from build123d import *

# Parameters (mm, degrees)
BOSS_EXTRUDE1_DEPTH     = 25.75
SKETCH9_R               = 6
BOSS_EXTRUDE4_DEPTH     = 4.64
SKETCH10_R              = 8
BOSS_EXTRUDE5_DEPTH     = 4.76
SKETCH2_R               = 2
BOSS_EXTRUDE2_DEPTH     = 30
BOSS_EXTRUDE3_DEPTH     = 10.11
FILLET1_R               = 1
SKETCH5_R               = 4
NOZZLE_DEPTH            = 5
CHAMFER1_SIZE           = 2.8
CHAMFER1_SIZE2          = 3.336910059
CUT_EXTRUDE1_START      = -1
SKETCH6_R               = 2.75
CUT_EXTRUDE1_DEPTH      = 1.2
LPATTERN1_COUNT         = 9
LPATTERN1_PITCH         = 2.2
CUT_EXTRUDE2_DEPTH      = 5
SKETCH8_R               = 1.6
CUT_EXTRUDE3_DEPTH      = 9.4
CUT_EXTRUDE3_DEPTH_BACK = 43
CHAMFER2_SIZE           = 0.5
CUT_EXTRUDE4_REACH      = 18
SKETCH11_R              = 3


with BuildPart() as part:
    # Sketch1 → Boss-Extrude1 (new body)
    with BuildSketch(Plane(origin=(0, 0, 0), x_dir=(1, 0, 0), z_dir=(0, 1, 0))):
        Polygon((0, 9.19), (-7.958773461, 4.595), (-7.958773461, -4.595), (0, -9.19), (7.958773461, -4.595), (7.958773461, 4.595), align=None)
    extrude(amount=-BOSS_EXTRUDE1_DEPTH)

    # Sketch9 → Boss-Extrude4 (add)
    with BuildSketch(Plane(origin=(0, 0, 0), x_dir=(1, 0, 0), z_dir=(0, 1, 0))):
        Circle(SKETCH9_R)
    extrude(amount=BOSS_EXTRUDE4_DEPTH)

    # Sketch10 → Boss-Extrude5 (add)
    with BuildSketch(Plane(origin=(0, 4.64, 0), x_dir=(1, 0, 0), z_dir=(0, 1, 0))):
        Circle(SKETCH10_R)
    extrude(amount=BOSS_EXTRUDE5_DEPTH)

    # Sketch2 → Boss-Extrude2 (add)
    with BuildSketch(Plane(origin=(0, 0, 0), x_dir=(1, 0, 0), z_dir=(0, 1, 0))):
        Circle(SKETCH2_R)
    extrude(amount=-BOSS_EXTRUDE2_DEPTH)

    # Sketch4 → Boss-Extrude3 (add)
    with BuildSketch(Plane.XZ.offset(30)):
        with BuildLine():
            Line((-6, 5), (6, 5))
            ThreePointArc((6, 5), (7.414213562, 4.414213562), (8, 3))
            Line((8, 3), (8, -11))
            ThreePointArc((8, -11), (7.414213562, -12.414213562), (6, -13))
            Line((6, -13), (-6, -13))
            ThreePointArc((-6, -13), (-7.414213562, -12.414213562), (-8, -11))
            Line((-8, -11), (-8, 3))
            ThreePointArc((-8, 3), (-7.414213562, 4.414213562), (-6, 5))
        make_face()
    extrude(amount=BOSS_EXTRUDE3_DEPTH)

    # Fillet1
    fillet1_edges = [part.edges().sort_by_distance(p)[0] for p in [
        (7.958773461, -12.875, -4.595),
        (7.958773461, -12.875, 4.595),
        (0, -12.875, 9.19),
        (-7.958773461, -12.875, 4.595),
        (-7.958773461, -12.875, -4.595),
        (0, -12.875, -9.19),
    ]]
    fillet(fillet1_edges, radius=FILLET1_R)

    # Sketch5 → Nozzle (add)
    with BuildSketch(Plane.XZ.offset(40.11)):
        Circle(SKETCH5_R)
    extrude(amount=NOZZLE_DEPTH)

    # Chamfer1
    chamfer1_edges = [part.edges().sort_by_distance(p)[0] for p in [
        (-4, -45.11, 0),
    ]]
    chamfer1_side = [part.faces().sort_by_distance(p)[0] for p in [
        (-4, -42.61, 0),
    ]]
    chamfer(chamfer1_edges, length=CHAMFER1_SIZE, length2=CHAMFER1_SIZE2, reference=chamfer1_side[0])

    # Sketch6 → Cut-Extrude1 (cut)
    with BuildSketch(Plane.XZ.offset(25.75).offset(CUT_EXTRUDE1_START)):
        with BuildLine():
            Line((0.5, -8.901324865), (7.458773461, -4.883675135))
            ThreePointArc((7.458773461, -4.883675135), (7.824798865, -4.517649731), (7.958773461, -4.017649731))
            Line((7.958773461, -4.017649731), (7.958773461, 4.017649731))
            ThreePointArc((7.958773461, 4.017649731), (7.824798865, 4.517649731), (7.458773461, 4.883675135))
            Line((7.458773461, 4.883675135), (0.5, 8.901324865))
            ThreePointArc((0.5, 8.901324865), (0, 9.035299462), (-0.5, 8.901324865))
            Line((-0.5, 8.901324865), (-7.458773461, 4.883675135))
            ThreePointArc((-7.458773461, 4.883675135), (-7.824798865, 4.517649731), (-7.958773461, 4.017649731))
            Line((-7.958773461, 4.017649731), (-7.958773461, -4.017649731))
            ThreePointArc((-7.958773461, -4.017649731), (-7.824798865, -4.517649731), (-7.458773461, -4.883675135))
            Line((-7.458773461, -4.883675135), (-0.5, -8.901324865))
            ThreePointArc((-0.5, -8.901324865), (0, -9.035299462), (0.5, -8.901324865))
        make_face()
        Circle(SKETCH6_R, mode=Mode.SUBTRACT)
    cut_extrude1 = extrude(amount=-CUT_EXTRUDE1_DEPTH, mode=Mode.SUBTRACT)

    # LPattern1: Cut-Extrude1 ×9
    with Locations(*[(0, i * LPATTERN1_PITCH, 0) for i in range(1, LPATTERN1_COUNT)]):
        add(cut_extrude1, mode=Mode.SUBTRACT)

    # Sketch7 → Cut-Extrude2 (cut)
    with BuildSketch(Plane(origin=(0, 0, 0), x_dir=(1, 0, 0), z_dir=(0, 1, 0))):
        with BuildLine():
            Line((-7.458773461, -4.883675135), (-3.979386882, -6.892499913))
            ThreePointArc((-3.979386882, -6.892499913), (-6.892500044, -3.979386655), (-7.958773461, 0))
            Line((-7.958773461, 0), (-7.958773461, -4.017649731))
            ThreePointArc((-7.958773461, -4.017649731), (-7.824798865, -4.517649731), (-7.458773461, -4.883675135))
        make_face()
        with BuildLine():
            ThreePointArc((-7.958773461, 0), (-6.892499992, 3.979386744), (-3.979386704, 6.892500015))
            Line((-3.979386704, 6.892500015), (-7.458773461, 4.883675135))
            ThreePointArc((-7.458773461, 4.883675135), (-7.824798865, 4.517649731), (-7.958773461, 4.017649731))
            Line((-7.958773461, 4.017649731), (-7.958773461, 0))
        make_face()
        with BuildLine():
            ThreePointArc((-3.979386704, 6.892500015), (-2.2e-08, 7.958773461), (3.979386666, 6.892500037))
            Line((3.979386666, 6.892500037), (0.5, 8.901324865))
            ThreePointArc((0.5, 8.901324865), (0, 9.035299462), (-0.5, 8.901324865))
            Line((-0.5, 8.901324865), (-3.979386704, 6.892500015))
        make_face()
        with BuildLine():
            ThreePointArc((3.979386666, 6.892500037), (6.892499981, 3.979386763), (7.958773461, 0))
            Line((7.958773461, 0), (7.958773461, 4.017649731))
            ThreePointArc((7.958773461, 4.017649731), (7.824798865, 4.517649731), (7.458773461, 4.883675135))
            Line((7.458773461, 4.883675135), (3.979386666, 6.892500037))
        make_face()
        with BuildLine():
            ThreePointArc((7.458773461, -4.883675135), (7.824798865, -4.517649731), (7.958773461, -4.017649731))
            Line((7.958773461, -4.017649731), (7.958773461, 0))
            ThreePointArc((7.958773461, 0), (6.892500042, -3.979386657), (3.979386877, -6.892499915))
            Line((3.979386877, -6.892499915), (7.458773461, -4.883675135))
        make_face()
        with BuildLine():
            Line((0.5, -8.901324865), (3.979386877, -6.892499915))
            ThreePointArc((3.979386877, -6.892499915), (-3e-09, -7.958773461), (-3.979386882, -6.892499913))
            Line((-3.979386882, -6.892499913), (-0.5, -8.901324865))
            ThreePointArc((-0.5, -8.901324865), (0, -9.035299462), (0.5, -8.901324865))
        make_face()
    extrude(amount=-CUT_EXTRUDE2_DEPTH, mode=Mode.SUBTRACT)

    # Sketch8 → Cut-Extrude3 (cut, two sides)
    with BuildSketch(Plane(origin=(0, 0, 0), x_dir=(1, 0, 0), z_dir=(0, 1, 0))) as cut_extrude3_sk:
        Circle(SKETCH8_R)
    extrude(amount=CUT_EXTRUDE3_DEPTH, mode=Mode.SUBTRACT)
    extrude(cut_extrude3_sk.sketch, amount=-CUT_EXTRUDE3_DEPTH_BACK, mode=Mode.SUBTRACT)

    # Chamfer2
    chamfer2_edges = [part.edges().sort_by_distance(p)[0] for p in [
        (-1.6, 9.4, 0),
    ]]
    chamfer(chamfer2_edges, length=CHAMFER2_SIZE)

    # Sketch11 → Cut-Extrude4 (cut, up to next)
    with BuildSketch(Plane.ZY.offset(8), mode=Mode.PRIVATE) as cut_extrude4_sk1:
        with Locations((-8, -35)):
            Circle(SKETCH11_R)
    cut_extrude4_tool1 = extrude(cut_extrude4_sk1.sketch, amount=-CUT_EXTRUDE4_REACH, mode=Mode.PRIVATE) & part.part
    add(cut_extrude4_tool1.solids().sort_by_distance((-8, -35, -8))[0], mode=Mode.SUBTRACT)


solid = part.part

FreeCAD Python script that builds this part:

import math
import FreeCAD as App
import Part
import Sketcher

V = App.Vector
Q = App.Units.Quantity


def edges_at(feature, points):
    """Names of the edges that pass closest to the given points."""
    edges = feature.Shape.Edges
    near = lambda p: min(range(len(edges)), key=lambda i: edges[i].distToShape(Part.Vertex(*p))[0])
    return sorted({f"Edge{near(p) + 1}" for p in points})


def add_polygon(sketch, points):
    """Adds a closed chain of lines whose ends are joined by coincident constraints."""
    first, n = sketch.GeometryCount, len(points)
    for a, b in zip(points, points[1:] + points[:1]):
        sketch.addGeometry(Part.LineSegment(App.Vector(*a, 0), App.Vector(*b, 0)), False)
    for i in range(n):
        sketch.addConstraint(Sketcher.Constraint("Coincident", first + i, 2, first + (i + 1) % n, 1))

doc = App.newDocument("Part")
body = doc.addObject("PartDesign::Body", "Body")

# Sketch on XZ plane
sketch1 = body.newObject("Sketcher::SketchObject", "Sketch")
sketch1.AttachmentSupport = (doc.getObject("XZ_Plane"), [""])
sketch1.MapMode = "FlatFace"
add_polygon(sketch1, [(0, -9), (-8, -5), (-8, 5), (0, 9), (8, 5), (8, -5)])  # lines 0-5
sketch1.addConstraint(Sketcher.Constraint("Vertical", 1))
sketch1.addConstraint(Sketcher.Constraint("Vertical", 4))
sketch1.addConstraint(Sketcher.Constraint("Symmetric", 0, 2, 3, 2, -1, 1))
sketch1.addConstraint(Sketcher.Constraint("Symmetric", 2, 2, 5, 2, -1, 1))
sketch1.addConstraint(Sketcher.Constraint("PointOnObject", 2, 2, -2))
sketch1.addConstraint(Sketcher.Constraint("Parallel", 2, 5))
sketch1.addConstraint(Sketcher.Constraint("Horizontal", 1, 2, 3, 2))
sketch1.addConstraint(Sketcher.Constraint("Angle", 0, Q("150 deg")))
sketch1.addConstraint(Sketcher.Constraint("DistanceY", 1, 1, 1, 2, 9.19))
sketch1.addConstraint(Sketcher.Constraint("Distance", 0, 9.19))
pad1 = body.newObject("PartDesign::Pad", "Pad")
pad1.Profile = sketch1
pad1.Length = 25.75

# Sketch on XZ plane
sketch2 = body.newObject("Sketcher::SketchObject", "Sketch001")
sketch2.AttachmentSupport = (doc.getObject("XZ_Plane"), [""])
sketch2.MapMode = "FlatFace"
sketch2.addGeometry(Part.Circle(V(0, 0, 0), V(0, 0, 1), 6), False)
sketch2.addConstraint(Sketcher.Constraint("Coincident", 0, 3, -1, 1))
sketch2.addConstraint(Sketcher.Constraint("Diameter", 0, 12.0))
pad2 = body.newObject("PartDesign::Pad", "Pad001")
pad2.Profile = sketch2
pad2.Length = 4.64
pad2.Reversed = True

# Sketch on XZ plane
sketch3 = body.newObject("Sketcher::SketchObject", "Sketch002")
sketch3.AttachmentSupport = (doc.getObject("XZ_Plane"), [""])
sketch3.MapMode = "FlatFace"
sketch3.AttachmentOffset = App.Placement(V(0, 0, -4.64), App.Rotation())
sketch3.addGeometry(Part.Circle(V(0, 0, 0), V(0, 0, 1), 8), False)
sketch3.addConstraint(Sketcher.Constraint("Coincident", 0, 3, -1, 1))
sketch3.addConstraint(Sketcher.Constraint("Diameter", 0, 16.0))
pad3 = body.newObject("PartDesign::Pad", "Pad002")
pad3.Profile = sketch3
pad3.Length = 4.76
pad3.Reversed = True

# Sketch on XZ plane
sketch4 = body.newObject("Sketcher::SketchObject", "Sketch003")
sketch4.AttachmentSupport = (doc.getObject("XZ_Plane"), [""])
sketch4.MapMode = "FlatFace"
sketch4.addGeometry(Part.Circle(V(0, 0, 0), V(0, 0, 1), 2), False)
sketch4.addConstraint(Sketcher.Constraint("Coincident", 0, 3, -1, 1))
sketch4.addConstraint(Sketcher.Constraint("Diameter", 0, 4.0))
pad4 = body.newObject("PartDesign::Pad", "Pad003")
pad4.Profile = sketch4
pad4.Length = 30

# Sketch on XZ plane
sketch5 = body.newObject("Sketcher::SketchObject", "Sketch004")
sketch5.AttachmentSupport = (doc.getObject("XZ_Plane"), [""])
sketch5.MapMode = "FlatFace"
sketch5.AttachmentOffset = App.Placement(V(0, 0, 30), App.Rotation())
sketch5.addGeometry(Part.LineSegment(V(6, 5, 0), V(-6, 5, 0)), False)
sketch5.addGeometry(Part.ArcOfCircle(Part.Circle(V(-6, 3, 0), V(0, 0, 1), 2), math.radians(90), math.radians(180)), False)
sketch5.addGeometry(Part.LineSegment(V(-8, 3, 0), V(-8, -11, 0)), False)
sketch5.addGeometry(Part.ArcOfCircle(Part.Circle(V(-6, -11, 0), V(0, 0, 1), 2), math.radians(-180), math.radians(-90)), False)
sketch5.addGeometry(Part.LineSegment(V(-6, -13, 0), V(6, -13, 0)), False)
sketch5.addGeometry(Part.ArcOfCircle(Part.Circle(V(6, -11, 0), V(0, 0, 1), 2), math.radians(-90), math.radians(0)), False)
sketch5.addGeometry(Part.LineSegment(V(8, -11, 0), V(8, 3, 0)), False)
sketch5.addGeometry(Part.ArcOfCircle(Part.Circle(V(6, 3, 0), V(0, 0, 1), 2), math.radians(0), math.radians(90)), False)
sketch5.addConstraint(Sketcher.Constraint("Tangent", 0, 2, 1, 1))
sketch5.addConstraint(Sketcher.Constraint("Tangent", 1, 2, 2, 1))
sketch5.addConstraint(Sketcher.Constraint("Tangent", 2, 2, 3, 1))
sketch5.addConstraint(Sketcher.Constraint("Tangent", 3, 2, 4, 1))
sketch5.addConstraint(Sketcher.Constraint("Tangent", 4, 2, 5, 1))
sketch5.addConstraint(Sketcher.Constraint("Tangent", 5, 2, 6, 1))
sketch5.addConstraint(Sketcher.Constraint("Tangent", 6, 2, 7, 1))
sketch5.addConstraint(Sketcher.Constraint("Tangent", 7, 2, 0, 1))
sketch5.addConstraint(Sketcher.Constraint("Horizontal", 0))
sketch5.addConstraint(Sketcher.Constraint("Vertical", 2))
sketch5.addConstraint(Sketcher.Constraint("Horizontal", 4))
sketch5.addConstraint(Sketcher.Constraint("Vertical", 6))
sketch5.addConstraint(Sketcher.Constraint("Equal", 1, 3))
sketch5.addConstraint(Sketcher.Constraint("Equal", 3, 5))
sketch5.addConstraint(Sketcher.Constraint("Equal", 5, 7))
sketch5.addConstraint(Sketcher.Constraint("Radius", 1, 2.0))
sketch5.addConstraint(Sketcher.Constraint("DistanceX", 0, 2, 0, 1, 12.0))
sketch5.addConstraint(Sketcher.Constraint("DistanceY", 2, 2, 2, 1, 14.0))
sketch5.addConstraint(Sketcher.Constraint("DistanceX", 1, 3, -1, 1, 6.0))
sketch5.addConstraint(Sketcher.Constraint("DistanceY", -1, 1, 1, 3, 3.0))
pad5 = body.newObject("PartDesign::Pad", "Pad004")
pad5.Profile = sketch5
pad5.Length = 10.11
doc.recompute()

fillet = body.newObject("PartDesign::Fillet", "Fillet")
fillet.Base = (pad5, edges_at(pad5, [
    (7.959, -12.875, -4.595),
    (7.959, -12.875, 4.595),
    (0, -12.875, 9.19),
    (-7.959, -12.875, 4.595),
    (-7.959, -12.875, -4.595),
    (0, -12.875, -9.19),
]))
fillet.Radius = 1

# Sketch on XZ plane
sketch6 = body.newObject("Sketcher::SketchObject", "Sketch005")
sketch6.AttachmentSupport = (doc.getObject("XZ_Plane"), [""])
sketch6.MapMode = "FlatFace"
sketch6.AttachmentOffset = App.Placement(V(0, 0, 40.11), App.Rotation())
sketch6.addGeometry(Part.Circle(V(0, 0, 0), V(0, 0, 1), 4), False)
sketch6.addConstraint(Sketcher.Constraint("Coincident", 0, 3, -1, 1))
sketch6.addConstraint(Sketcher.Constraint("Diameter", 0, 8.0))
pad6 = body.newObject("PartDesign::Pad", "Pad005")
pad6.Profile = sketch6
pad6.Length = 5
doc.recompute()

chamfer = body.newObject("PartDesign::Chamfer", "Chamfer")
chamfer.Base = (pad6, edges_at(pad6, [(-4, -45.11, 0)]))
chamfer.ChamferType = "Two distances"
chamfer.Size = 2.8
chamfer.Size2 = 3.33691

# Sketch on XZ plane
sketch7 = body.newObject("Sketcher::SketchObject", "Sketch006")
sketch7.AttachmentSupport = (doc.getObject("XZ_Plane"), [""])
sketch7.MapMode = "FlatFace"
sketch7.AttachmentOffset = App.Placement(V(0, 0, 24.75), App.Rotation())
sketch7.addGeometry(Part.LineSegment(V(0.5, -8.9, 0), V(7.5, -4.9, 0)), False)
sketch7.addGeometry(Part.ArcOfCircle(Part.Circle(V(7, -4, 0), V(0, 0, 1), 1), math.radians(-60), math.radians(0)), False)
sketch7.addGeometry(Part.LineSegment(V(8, -4, 0), V(8, 4, 0)), False)
sketch7.addGeometry(Part.ArcOfCircle(Part.Circle(V(7, 4, 0), V(0, 0, 1), 1), math.radians(0), math.radians(60)), False)
sketch7.addGeometry(Part.LineSegment(V(7.5, 4.9, 0), V(0.5, 8.9, 0)), False)
sketch7.addGeometry(Part.ArcOfCircle(Part.Circle(V(0, 8, 0), V(0, 0, 1), 1), math.radians(60), math.radians(120)), False)
sketch7.addGeometry(Part.LineSegment(V(-0.5, 8.9, 0), V(-7.5, 4.9, 0)), False)
sketch7.addGeometry(Part.ArcOfCircle(Part.Circle(V(-7, 4, 0), V(0, 0, 1), 1), math.radians(120), math.radians(180)), False)
sketch7.addGeometry(Part.LineSegment(V(-8, 4, 0), V(-8, -4, 0)), False)
sketch7.addGeometry(Part.ArcOfCircle(Part.Circle(V(-7, -4, 0), V(0, 0, 1), 1), math.radians(180), math.radians(240)), False)
sketch7.addGeometry(Part.LineSegment(V(-7.5, -4.9, 0), V(-0.5, -8.9, 0)), False)
sketch7.addGeometry(Part.ArcOfCircle(Part.Circle(V(0, -8, 0), V(0, 0, 1), 1), math.radians(-120), math.radians(-60)), False)
sketch7.addGeometry(Part.Circle(V(0, 0, 0), V(0, 0, 1), 2.8), False)
sketch7.addConstraint(Sketcher.Constraint("Tangent", 0, 2, 1, 1))
sketch7.addConstraint(Sketcher.Constraint("Tangent", 1, 2, 2, 1))
sketch7.addConstraint(Sketcher.Constraint("Tangent", 2, 2, 3, 1))
sketch7.addConstraint(Sketcher.Constraint("Tangent", 3, 2, 4, 1))
sketch7.addConstraint(Sketcher.Constraint("Tangent", 4, 2, 5, 1))
sketch7.addConstraint(Sketcher.Constraint("Tangent", 5, 2, 6, 1))
sketch7.addConstraint(Sketcher.Constraint("Tangent", 6, 2, 7, 1))
sketch7.addConstraint(Sketcher.Constraint("Tangent", 7, 2, 8, 1))
sketch7.addConstraint(Sketcher.Constraint("Tangent", 8, 2, 9, 1))
sketch7.addConstraint(Sketcher.Constraint("Tangent", 9, 2, 10, 1))
sketch7.addConstraint(Sketcher.Constraint("Tangent", 10, 2, 11, 1))
sketch7.addConstraint(Sketcher.Constraint("Tangent", 11, 2, 0, 1))
sketch7.addConstraint(Sketcher.Constraint("Vertical", 2))
sketch7.addConstraint(Sketcher.Constraint("Vertical", 8))
sketch7.addConstraint(Sketcher.Constraint("Coincident", 12, 3, -1, 1))
sketch7.addConstraint(Sketcher.Constraint("Equal", 1, 3))
sketch7.addConstraint(Sketcher.Constraint("Equal", 3, 5))
sketch7.addConstraint(Sketcher.Constraint("Equal", 5, 7))
sketch7.addConstraint(Sketcher.Constraint("Equal", 7, 9))
sketch7.addConstraint(Sketcher.Constraint("Equal", 9, 11))
sketch7.addConstraint(Sketcher.Constraint("Symmetric", 1, 3, 7, 3, -1, 1))
sketch7.addConstraint(Sketcher.Constraint("Symmetric", 5, 3, 11, 3, -1, 1))
sketch7.addConstraint(Sketcher.Constraint("Symmetric", 4, 2, 5, 2, -2))
sketch7.addConstraint(Sketcher.Constraint("Parallel", 4, 10))
sketch7.addConstraint(Sketcher.Constraint("Radius", 1, 1.0))
sketch7.addConstraint(Sketcher.Constraint("Diameter", 12, 5.5))
sketch7.addConstraint(Sketcher.Constraint("Angle", 0, Q("30 deg")))
sketch7.addConstraint(Sketcher.Constraint("DistanceY", 2, 1, 2, 2, 8.035299))
sketch7.addConstraint(Sketcher.Constraint("Distance", 0, 8.035299))
pocket1 = body.newObject("PartDesign::Pocket", "Pocket")
pocket1.Profile = sketch7
pocket1.Length = 1.2
doc.recompute()

linearpattern = body.newObject("PartDesign::LinearPattern", "LinearPattern")
linearpattern.Originals = [pocket1]
linearpattern.Direction = (doc.getObject("Y_Axis"), [""])
linearpattern.Mode = "offset"
linearpattern.Offset = 2.2
linearpattern.Occurrences = 9
body.Tip = linearpattern

# Sketch on XZ plane
sketch8 = body.newObject("Sketcher::SketchObject", "Sketch007")
sketch8.AttachmentSupport = (doc.getObject("XZ_Plane"), [""])
sketch8.MapMode = "FlatFace"
sketch8.addGeometry(Part.LineSegment(V(-7.5, 4.9, 0), V(-4, 6.9, 0)), False)
sketch8.addGeometry(Part.ArcOfCircle(Part.Circle(V(0, 0, 0), V(0, 0, 1), 8), math.radians(120), math.radians(180)), False)
sketch8.addGeometry(Part.LineSegment(V(-8, 0, 0), V(-8, 4, 0)), False)
sketch8.addGeometry(Part.ArcOfCircle(Part.Circle(V(-7, 4, 0), V(0, 0, 1), 1), math.radians(120), math.radians(180)), False)
sketch8.addGeometry(Part.ArcOfCircle(Part.Circle(V(0, 0, 0), V(0, 0, 1), 8), math.radians(-180), math.radians(-120)), False)
sketch8.addGeometry(Part.LineSegment(V(-4, -6.9, 0), V(-7.5, -4.9, 0)), False)
sketch8.addGeometry(Part.ArcOfCircle(Part.Circle(V(-7, -4, 0), V(0, 0, 1), 1), math.radians(180), math.radians(240)), False)
sketch8.addGeometry(Part.LineSegment(V(-8, -4, 0), V(-8, 0, 0)), False)
sketch8.addGeometry(Part.ArcOfCircle(Part.Circle(V(0, 0, 0), V(0, 0, 1), 8), math.radians(-120), math.radians(-60)), False)
sketch8.addGeometry(Part.LineSegment(V(4, -6.9, 0), V(0.5, -8.9, 0)), False)
sketch8.addGeometry(Part.ArcOfCircle(Part.Circle(V(0, -8, 0), V(0, 0, 1), 1), math.radians(-120), math.radians(-60)), False)
sketch8.addGeometry(Part.LineSegment(V(-0.5, -8.9, 0), V(-4, -6.9, 0)), False)
sketch8.addGeometry(Part.ArcOfCircle(Part.Circle(V(0, 0, 0), V(0, 0, 1), 8), math.radians(-60), math.radians(0)), False)
sketch8.addGeometry(Part.LineSegment(V(8, 0, 0), V(8, -4, 0)), False)
sketch8.addGeometry(Part.ArcOfCircle(Part.Circle(V(7, -4, 0), V(0, 0, 1), 1), math.radians(-60), math.radians(0)), False)
sketch8.addGeometry(Part.LineSegment(V(7.5, -4.9, 0), V(4, -6.9, 0)), False)
sketch8.addGeometry(Part.ArcOfCircle(Part.Circle(V(7, 4, 0), V(0, 0, 1), 1), math.radians(0), math.radians(60)), False)
sketch8.addGeometry(Part.LineSegment(V(8, 4, 0), V(8, 0, 0)), False)
sketch8.addGeometry(Part.ArcOfCircle(Part.Circle(V(0, 0, 0), V(0, 0, 1), 8), math.radians(0), math.radians(60)), False)
sketch8.addGeometry(Part.LineSegment(V(4, 6.9, 0), V(7.5, 4.9, 0)), False)
sketch8.addGeometry(Part.LineSegment(V(0.5, 8.9, 0), V(4, 6.9, 0)), False)
sketch8.addGeometry(Part.ArcOfCircle(Part.Circle(V(0, 0, 0), V(0, 0, 1), 8), math.radians(60), math.radians(120)), False)
sketch8.addGeometry(Part.LineSegment(V(-4, 6.9, 0), V(-0.5, 8.9, 0)), False)
sketch8.addGeometry(Part.ArcOfCircle(Part.Circle(V(0, 8, 0), V(0, 0, 1), 1), math.radians(60), math.radians(120)), False)
sketch8.addConstraint(Sketcher.Constraint("Tangent", 0, 2, 1, 1))
sketch8.addConstraint(Sketcher.Constraint("Tangent", 1, 2, 2, 1))
sketch8.addConstraint(Sketcher.Constraint("Tangent", 2, 2, 3, 2))
sketch8.addConstraint(Sketcher.Constraint("Tangent", 3, 1, 0, 1))
sketch8.addConstraint(Sketcher.Constraint("Tangent", 4, 2, 5, 1))
sketch8.addConstraint(Sketcher.Constraint("Tangent", 5, 2, 6, 2))
sketch8.addConstraint(Sketcher.Constraint("Tangent", 6, 1, 7, 1))
sketch8.addConstraint(Sketcher.Constraint("Tangent", 7, 2, 4, 1))
sketch8.addConstraint(Sketcher.Constraint("Tangent", 8, 2, 9, 1))
sketch8.addConstraint(Sketcher.Constraint("Tangent", 9, 2, 10, 2))
sketch8.addConstraint(Sketcher.Constraint("Tangent", 10, 1, 11, 1))
sketch8.addConstraint(Sketcher.Constraint("Tangent", 11, 2, 8, 1))
sketch8.addConstraint(Sketcher.Constraint("Tangent", 12, 2, 13, 1))
sketch8.addConstraint(Sketcher.Constraint("Tangent", 13, 2, 14, 2))
sketch8.addConstraint(Sketcher.Constraint("Tangent", 14, 1, 15, 1))
sketch8.addConstraint(Sketcher.Constraint("Tangent", 15, 2, 12, 1))
sketch8.addConstraint(Sketcher.Constraint("Tangent", 16, 1, 17, 1))
sketch8.addConstraint(Sketcher.Constraint("Tangent", 17, 2, 18, 1))
sketch8.addConstraint(Sketcher.Constraint("Tangent", 18, 2, 19, 1))
sketch8.addConstraint(Sketcher.Constraint("Tangent", 19, 2, 16, 2))
sketch8.addConstraint(Sketcher.Constraint("Tangent", 20, 2, 21, 1))
sketch8.addConstraint(Sketcher.Constraint("Tangent", 21, 2, 22, 1))
sketch8.addConstraint(Sketcher.Constraint("Tangent", 22, 2, 23, 2))
sketch8.addConstraint(Sketcher.Constraint("Tangent", 23, 1, 20, 1))
sketch8.addConstraint(Sketcher.Constraint("Vertical", 2))
sketch8.addConstraint(Sketcher.Constraint("Vertical", 7))
sketch8.addConstraint(Sketcher.Constraint("Vertical", 13))
sketch8.addConstraint(Sketcher.Constraint("Vertical", 17))
sketch8.addConstraint(Sketcher.Constraint("Coincident", 1, 3, -1, 1))
sketch8.addConstraint(Sketcher.Constraint("Coincident", 4, 3, -1, 1))
sketch8.addConstraint(Sketcher.Constraint("Coincident", 8, 3, -1, 1))
sketch8.addConstraint(Sketcher.Constraint("Coincident", 12, 3, -1, 1))
sketch8.addConstraint(Sketcher.Constraint("Coincident", 18, 3, -1, 1))
sketch8.addConstraint(Sketcher.Constraint("Coincident", 21, 3, -1, 1))
sketch8.addConstraint(Sketcher.Constraint("Coincident", 11, 2, 4, 2))
sketch8.addConstraint(Sketcher.Constraint("Coincident", 15, 2, 8, 2))
sketch8.addConstraint(Sketcher.Constraint("Coincident", 20, 2, 18, 2))
sketch8.addConstraint(Sketcher.Constraint("Coincident", 21, 2, 0, 2))
sketch8.addConstraint(Sketcher.Constraint("Equal", 1, 4))
sketch8.addConstraint(Sketcher.Constraint("Equal", 3, 6))
sketch8.addConstraint(Sketcher.Constraint("Equal", 6, 10))
sketch8.addConstraint(Sketcher.Constraint("Equal", 10, 14))
sketch8.addConstraint(Sketcher.Constraint("Equal", 14, 16))
sketch8.addConstraint(Sketcher.Constraint("Equal", 16, 23))
sketch8.addConstraint(Sketcher.Constraint("Symmetric", 10, 3, 23, 3, -1, 1))
sketch8.addConstraint(Sketcher.Constraint("PointOnObject", 10, 3, -2))
sketch8.addConstraint(Sketcher.Constraint("Equal", 5, 9))
sketch8.addConstraint(Sketcher.Constraint("Radius", 3, 1.0))
sketch8.addConstraint(Sketcher.Constraint("Radius", 1, 7.958773))
pocket2 = body.newObject("PartDesign::Pocket", "Pocket001")
pocket2.Profile = sketch8
pocket2.Length = 5
pocket2.Reversed = True

# Sketch on XZ plane
sketch9 = body.newObject("Sketcher::SketchObject", "Sketch008")
sketch9.AttachmentSupport = (doc.getObject("XZ_Plane"), [""])
sketch9.MapMode = "FlatFace"
sketch9.addGeometry(Part.Circle(V(0, 0, 0), V(0, 0, 1), 1.6), False)
sketch9.addConstraint(Sketcher.Constraint("Coincident", 0, 3, -1, 1))
sketch9.addConstraint(Sketcher.Constraint("Diameter", 0, 3.2))
pocket3 = body.newObject("PartDesign::Pocket", "Pocket002")
pocket3.Profile = sketch9
pocket3.Type = "TwoLengths"
pocket3.Length = 9.4
pocket3.Length2 = 43
doc.recompute()

chamfer2 = body.newObject("PartDesign::Chamfer", "Chamfer001")
chamfer2.Base = (pocket3, edges_at(pocket3, [(-1.6, 9.4, 0)]))
chamfer2.Size = 0.5

# Sketch on YZ plane
sketch10 = body.newObject("Sketcher::SketchObject", "Sketch009")
sketch10.AttachmentSupport = (doc.getObject("YZ_Plane"), [""])
sketch10.MapMode = "FlatFace"
sketch10.AttachmentOffset = App.Placement(V(0, 0, -8), App.Rotation())
sketch10.addGeometry(Part.Circle(V(-35, -8, 0), V(0, 0, 1), 3), False)
sketch10.addConstraint(Sketcher.Constraint("Diameter", 0, 6.0))
sketch10.addConstraint(Sketcher.Constraint("DistanceX", 0, 3, -1, 1, 35.0))
sketch10.addConstraint(Sketcher.Constraint("DistanceY", 0, 3, -1, 1, 8.0))
pocket4 = body.newObject("PartDesign::Pocket", "Pocket003")
pocket4.Profile = sketch10
pocket4.Type = "UpToFirst"
pocket4.Reversed = True

doc.recompute()
